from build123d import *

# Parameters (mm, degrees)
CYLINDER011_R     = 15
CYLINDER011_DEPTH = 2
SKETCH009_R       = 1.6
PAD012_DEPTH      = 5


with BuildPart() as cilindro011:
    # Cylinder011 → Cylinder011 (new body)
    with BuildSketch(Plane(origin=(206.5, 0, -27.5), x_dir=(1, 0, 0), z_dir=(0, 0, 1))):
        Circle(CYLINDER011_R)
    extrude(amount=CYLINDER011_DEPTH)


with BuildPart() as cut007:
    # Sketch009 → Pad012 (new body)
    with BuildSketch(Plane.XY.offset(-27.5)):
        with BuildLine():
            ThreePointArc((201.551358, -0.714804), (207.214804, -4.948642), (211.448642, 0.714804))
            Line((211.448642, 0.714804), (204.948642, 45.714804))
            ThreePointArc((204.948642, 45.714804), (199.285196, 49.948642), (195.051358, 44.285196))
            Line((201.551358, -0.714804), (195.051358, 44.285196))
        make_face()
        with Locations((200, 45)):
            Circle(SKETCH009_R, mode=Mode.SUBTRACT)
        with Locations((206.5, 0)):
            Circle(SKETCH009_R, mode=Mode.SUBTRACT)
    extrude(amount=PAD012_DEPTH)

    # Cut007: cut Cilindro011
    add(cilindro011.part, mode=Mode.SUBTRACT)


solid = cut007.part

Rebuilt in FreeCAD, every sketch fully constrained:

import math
import FreeCAD as App
import Part
import Sketcher
from FreeCAD import Vector
Q = App.Units.Quantity

doc = App.newDocument("Part")
body = doc.addObject("PartDesign::Body", "Body")

sketch1 = body.newObject("Sketcher::SketchObject", "Sketch")
sketch1.AttachmentSupport = (doc.getObject("XY_Plane"), [""])
sketch1.MapMode = "FlatFace"
sketch1.AttachmentOffset = App.Placement(Vector(0, 0, -27.5), App.Rotation())
sketch1.addGeometry(Part.Circle(Vector(206.5, 0, 0), Vector(0, 0, 1), 15), False)
sketch1.addConstraint(Sketcher.Constraint("PointOnObject", 0, 3, -1))
sketch1.addConstraint(Sketcher.Constraint("Diameter", 0, Q("30 mm")))
sketch1.addConstraint(Sketcher.Constraint("DistanceX", -1, 1, 0, 3, Q("206.5 mm")))
pad1 = body.newObject("PartDesign::Pad", "Pad")
pad1.Profile = sketch1
pad1.Length = 2
body2 = doc.addObject("PartDesign::Body", "Body001")

sketch2 = body2.newObject("Sketcher::SketchObject", "Sketch001")
sketch2.AttachmentSupport = (doc.getObject("XY_Plane001"), [""])
sketch2.MapMode = "FlatFace"
sketch2.AttachmentOffset = App.Placement(Vector(0, 0, -27.5), App.Rotation())
sketch2.addGeometry(Part.ArcOfCircle(Part.Circle(Vector(206.5, 0, 0), Vector(0, 0, 1), 5), math.radians(-171.780789), math.radians(8.219211)), False)
sketch2.addGeometry(Part.LineSegment(Vector(211.448642, 0.714804, 0), Vector(204.948642, 45.714804, 0)), False)
sketch2.addGeometry(Part.ArcOfCircle(Part.Circle(Vector(200, 45, 0), Vector(0, 0, 1), 5), math.radians(8.219211), math.radians(188.219211)), False)
sketch2.addGeometry(Part.LineSegment(Vector(195.051358, 44.285196, 0), Vector(201.551358, -0.714804, 0)), False)
sketch2.addGeometry(Part.Circle(Vector(206.5, 0, 0), Vector(0, 0, 1), 1.6), False)
sketch2.addGeometry(Part.Circle(Vector(200, 45, 0), Vector(0, 0, 1), 1.6), False)
sketch2.addConstraint(Sketcher.Constraint("Tangent", 0, 2, 1, 1))
sketch2.addConstraint(Sketcher.Constraint("Tangent", 1, 2, 2, 1))
sketch2.addConstraint(Sketcher.Constraint("Tangent", 2, 2, 3, 1))
sketch2.addConstraint(Sketcher.Constraint("Tangent", 3, 2, 0, 1))
sketch2.addConstraint(Sketcher.Constraint("Coincident", 4, 3, 0, 3))
sketch2.addConstraint(Sketcher.Constraint("Coincident", 5, 3, 2, 3))
sketch2.addConstraint(Sketcher.Constraint("Equal", 0, 2))
sketch2.addConstraint(Sketcher.Constraint("Equal", 4, 5))
sketch2.addConstraint(Sketcher.Constraint("PointOnObject", 0, 3, -1))
sketch2.addConstraint(Sketcher.Constraint("Radius", 0, Q("5 mm")))
sketch2.addConstraint(Sketcher.Constraint("Diameter", 4, Q("3.2 mm")))
sketch2.addConstraint(Sketcher.Constraint("DistanceX", -1, 1, 2, 3, Q("200 mm")))
sketch2.addConstraint(Sketcher.Constraint("DistanceY", -1, 1, 2, 3, Q("45 mm")))
sketch2.addConstraint(Sketcher.Constraint("DistanceX", -1, 1, 0, 3, Q("206.5 mm")))
pad2 = body2.newObject("PartDesign::Pad", "Pad001")
pad2.Profile = sketch2
pad2.Length = 5
doc.recompute()

boolean = body2.newObject("PartDesign::Boolean", "Boolean")
boolean.Type = "Cut"
boolean.addObjects([body])

doc.recompute()
